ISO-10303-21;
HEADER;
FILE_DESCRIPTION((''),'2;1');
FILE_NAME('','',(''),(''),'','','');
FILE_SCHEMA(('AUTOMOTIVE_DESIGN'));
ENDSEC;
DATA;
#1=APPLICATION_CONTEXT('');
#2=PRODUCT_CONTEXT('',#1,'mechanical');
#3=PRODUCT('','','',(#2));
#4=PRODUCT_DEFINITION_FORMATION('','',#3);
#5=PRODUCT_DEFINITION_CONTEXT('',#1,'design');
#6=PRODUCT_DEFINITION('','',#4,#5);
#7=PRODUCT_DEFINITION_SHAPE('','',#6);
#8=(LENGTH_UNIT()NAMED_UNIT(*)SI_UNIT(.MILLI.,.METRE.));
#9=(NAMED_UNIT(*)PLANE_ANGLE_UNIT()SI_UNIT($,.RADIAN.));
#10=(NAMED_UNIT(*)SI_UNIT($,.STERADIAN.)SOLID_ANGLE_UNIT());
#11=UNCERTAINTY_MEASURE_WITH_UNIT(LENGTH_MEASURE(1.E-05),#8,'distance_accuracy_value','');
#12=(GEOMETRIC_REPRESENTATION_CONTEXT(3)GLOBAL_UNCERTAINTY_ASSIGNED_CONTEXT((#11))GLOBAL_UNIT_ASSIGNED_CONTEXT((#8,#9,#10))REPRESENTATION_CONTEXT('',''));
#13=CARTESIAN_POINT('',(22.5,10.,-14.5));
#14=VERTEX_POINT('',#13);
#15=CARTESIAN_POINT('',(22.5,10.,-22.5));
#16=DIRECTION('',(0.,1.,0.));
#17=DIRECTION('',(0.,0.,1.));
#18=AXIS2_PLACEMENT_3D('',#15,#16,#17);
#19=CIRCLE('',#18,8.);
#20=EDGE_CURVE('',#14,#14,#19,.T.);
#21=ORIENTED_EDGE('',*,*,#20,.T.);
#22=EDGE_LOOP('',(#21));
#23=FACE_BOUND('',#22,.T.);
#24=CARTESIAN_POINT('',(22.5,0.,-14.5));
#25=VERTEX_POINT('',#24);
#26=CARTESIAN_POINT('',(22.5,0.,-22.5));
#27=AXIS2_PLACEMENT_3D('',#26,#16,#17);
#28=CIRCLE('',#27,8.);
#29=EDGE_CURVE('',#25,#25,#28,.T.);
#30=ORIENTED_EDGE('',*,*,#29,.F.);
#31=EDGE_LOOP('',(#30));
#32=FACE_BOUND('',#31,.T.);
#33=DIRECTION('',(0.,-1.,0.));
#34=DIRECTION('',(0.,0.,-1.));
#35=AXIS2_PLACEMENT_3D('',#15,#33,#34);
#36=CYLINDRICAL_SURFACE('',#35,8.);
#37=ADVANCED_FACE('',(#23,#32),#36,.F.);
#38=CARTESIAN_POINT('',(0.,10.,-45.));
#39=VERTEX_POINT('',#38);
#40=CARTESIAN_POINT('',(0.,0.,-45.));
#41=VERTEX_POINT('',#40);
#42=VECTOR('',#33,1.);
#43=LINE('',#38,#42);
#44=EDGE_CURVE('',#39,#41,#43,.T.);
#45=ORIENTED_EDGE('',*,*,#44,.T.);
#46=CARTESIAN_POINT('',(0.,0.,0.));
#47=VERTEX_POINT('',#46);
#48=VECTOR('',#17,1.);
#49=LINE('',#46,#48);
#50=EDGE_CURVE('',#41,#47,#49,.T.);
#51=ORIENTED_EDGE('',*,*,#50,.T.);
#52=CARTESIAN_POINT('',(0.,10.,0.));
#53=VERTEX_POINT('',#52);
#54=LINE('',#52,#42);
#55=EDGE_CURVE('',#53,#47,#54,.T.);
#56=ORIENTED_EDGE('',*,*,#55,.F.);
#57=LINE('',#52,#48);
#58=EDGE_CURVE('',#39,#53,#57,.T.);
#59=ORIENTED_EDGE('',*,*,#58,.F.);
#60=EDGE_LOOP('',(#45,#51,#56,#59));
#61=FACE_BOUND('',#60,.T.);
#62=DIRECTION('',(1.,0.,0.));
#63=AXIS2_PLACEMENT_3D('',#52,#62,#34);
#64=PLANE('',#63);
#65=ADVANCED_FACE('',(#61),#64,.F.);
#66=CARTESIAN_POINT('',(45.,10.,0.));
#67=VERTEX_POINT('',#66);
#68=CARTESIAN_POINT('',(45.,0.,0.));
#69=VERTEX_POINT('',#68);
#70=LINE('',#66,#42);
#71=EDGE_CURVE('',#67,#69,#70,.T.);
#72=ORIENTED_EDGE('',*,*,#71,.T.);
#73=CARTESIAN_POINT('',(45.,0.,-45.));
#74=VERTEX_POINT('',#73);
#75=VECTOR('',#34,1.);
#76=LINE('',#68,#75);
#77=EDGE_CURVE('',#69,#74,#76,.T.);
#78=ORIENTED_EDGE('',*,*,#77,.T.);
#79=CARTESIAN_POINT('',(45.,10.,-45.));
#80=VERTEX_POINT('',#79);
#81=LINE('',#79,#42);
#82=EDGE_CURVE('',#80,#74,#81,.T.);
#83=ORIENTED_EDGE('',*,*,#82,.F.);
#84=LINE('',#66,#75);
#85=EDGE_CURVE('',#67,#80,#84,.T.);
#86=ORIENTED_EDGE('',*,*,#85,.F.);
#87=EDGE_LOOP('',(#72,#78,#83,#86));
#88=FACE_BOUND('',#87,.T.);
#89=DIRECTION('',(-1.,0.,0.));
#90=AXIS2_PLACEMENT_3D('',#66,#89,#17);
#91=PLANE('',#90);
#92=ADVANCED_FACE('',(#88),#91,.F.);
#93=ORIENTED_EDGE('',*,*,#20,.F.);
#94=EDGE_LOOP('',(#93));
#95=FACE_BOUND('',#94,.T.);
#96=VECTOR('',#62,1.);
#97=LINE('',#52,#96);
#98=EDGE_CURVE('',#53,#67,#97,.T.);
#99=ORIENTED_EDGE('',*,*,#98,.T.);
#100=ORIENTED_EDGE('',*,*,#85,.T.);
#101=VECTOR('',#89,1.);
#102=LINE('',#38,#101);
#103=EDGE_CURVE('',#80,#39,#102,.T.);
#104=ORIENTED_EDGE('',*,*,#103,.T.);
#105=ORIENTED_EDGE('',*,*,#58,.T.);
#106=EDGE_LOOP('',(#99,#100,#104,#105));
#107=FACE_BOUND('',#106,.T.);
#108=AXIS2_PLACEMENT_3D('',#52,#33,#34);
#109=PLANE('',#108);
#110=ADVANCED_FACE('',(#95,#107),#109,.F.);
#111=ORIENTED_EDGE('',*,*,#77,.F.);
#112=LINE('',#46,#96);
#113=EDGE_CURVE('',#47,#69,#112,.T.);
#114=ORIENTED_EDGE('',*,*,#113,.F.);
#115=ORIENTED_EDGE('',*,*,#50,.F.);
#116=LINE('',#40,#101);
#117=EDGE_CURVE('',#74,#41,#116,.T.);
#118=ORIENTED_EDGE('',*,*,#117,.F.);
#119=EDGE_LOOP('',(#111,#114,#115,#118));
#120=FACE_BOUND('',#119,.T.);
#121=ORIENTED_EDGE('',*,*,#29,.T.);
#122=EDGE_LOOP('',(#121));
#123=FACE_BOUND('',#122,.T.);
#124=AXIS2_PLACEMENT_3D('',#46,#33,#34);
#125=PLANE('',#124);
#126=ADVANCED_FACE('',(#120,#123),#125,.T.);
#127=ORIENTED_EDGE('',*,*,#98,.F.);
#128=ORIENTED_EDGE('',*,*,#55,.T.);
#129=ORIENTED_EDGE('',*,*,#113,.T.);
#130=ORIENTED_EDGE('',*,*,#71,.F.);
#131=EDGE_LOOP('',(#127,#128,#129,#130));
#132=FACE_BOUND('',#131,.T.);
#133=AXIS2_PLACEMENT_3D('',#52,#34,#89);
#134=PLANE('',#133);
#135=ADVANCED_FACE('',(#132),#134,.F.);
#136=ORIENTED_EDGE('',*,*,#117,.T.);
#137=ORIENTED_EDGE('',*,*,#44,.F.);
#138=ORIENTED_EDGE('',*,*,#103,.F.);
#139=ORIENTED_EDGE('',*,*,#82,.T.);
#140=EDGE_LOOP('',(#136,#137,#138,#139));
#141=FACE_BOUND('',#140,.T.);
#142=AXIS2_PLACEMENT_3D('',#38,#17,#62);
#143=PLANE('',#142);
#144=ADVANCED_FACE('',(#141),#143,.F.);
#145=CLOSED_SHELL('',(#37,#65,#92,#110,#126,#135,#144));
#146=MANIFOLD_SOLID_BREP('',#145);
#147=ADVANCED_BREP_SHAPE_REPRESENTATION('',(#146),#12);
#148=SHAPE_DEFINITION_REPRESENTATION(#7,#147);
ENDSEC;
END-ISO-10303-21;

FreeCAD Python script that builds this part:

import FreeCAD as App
import Part
import Sketcher

V = App.Vector
Q = App.Units.Quantity


def add_polygon(sketch, points):
    """Adds a closed chain of lines whose ends are joined by coincident constraints."""
    first, n = sketch.GeometryCount, len(points)
    for a, b in zip(points, points[1:] + points[:1]):
        sketch.addGeometry(Part.LineSegment(App.Vector(*a, 0), App.Vector(*b, 0)), False)
    for i in range(n):
        sketch.addConstraint(Sketcher.Constraint("Coincident", first + i, 2, first + (i + 1) % n, 1))

doc = App.newDocument("Part")
body = doc.addObject("PartDesign::Body", "Body")

# Sketch on XZ plane
sketch1 = body.newObject("Sketcher::SketchObject", "Sketch")
sketch1.AttachmentSupport = (doc.getObject("XZ_Plane"), [""])
sketch1.MapMode = "FlatFace"
add_polygon(sketch1, [(0, -45), (0, 0), (45, 0), (45, -45)])  # lines 0-3
sketch1.addGeometry(Part.Circle(V(22, -22, 0), V(0, 0, 1), 8), False)  # 4
sketch1.addConstraint([
    Sketcher.Constraint("Vertical", 0),
    Sketcher.Constraint("Horizontal", 1),
    Sketcher.Constraint("Vertical", 2),
    Sketcher.Constraint("Horizontal", 3),
    Sketcher.Constraint("Coincident", 0, 2, -1, 1),
    Sketcher.Constraint("Equal", 3, 0),
    Sketcher.Constraint("Diameter", 4, Q("16 mm")),
    Sketcher.Constraint("DistanceX", 1, 1, 1, 2, Q("45 mm")),
    Sketcher.Constraint("DistanceX", -1, 1, 4, 3, Q("22.5 mm")),
    Sketcher.Constraint("DistanceY", 4, 3, -1, 1, Q("22.5 mm")),
])
pad1 = body.newObject("PartDesign::Pad", "Pad")
pad1.Profile = sketch1
pad1.Length = 10
pad1.Reversed = True

doc.recompute()
